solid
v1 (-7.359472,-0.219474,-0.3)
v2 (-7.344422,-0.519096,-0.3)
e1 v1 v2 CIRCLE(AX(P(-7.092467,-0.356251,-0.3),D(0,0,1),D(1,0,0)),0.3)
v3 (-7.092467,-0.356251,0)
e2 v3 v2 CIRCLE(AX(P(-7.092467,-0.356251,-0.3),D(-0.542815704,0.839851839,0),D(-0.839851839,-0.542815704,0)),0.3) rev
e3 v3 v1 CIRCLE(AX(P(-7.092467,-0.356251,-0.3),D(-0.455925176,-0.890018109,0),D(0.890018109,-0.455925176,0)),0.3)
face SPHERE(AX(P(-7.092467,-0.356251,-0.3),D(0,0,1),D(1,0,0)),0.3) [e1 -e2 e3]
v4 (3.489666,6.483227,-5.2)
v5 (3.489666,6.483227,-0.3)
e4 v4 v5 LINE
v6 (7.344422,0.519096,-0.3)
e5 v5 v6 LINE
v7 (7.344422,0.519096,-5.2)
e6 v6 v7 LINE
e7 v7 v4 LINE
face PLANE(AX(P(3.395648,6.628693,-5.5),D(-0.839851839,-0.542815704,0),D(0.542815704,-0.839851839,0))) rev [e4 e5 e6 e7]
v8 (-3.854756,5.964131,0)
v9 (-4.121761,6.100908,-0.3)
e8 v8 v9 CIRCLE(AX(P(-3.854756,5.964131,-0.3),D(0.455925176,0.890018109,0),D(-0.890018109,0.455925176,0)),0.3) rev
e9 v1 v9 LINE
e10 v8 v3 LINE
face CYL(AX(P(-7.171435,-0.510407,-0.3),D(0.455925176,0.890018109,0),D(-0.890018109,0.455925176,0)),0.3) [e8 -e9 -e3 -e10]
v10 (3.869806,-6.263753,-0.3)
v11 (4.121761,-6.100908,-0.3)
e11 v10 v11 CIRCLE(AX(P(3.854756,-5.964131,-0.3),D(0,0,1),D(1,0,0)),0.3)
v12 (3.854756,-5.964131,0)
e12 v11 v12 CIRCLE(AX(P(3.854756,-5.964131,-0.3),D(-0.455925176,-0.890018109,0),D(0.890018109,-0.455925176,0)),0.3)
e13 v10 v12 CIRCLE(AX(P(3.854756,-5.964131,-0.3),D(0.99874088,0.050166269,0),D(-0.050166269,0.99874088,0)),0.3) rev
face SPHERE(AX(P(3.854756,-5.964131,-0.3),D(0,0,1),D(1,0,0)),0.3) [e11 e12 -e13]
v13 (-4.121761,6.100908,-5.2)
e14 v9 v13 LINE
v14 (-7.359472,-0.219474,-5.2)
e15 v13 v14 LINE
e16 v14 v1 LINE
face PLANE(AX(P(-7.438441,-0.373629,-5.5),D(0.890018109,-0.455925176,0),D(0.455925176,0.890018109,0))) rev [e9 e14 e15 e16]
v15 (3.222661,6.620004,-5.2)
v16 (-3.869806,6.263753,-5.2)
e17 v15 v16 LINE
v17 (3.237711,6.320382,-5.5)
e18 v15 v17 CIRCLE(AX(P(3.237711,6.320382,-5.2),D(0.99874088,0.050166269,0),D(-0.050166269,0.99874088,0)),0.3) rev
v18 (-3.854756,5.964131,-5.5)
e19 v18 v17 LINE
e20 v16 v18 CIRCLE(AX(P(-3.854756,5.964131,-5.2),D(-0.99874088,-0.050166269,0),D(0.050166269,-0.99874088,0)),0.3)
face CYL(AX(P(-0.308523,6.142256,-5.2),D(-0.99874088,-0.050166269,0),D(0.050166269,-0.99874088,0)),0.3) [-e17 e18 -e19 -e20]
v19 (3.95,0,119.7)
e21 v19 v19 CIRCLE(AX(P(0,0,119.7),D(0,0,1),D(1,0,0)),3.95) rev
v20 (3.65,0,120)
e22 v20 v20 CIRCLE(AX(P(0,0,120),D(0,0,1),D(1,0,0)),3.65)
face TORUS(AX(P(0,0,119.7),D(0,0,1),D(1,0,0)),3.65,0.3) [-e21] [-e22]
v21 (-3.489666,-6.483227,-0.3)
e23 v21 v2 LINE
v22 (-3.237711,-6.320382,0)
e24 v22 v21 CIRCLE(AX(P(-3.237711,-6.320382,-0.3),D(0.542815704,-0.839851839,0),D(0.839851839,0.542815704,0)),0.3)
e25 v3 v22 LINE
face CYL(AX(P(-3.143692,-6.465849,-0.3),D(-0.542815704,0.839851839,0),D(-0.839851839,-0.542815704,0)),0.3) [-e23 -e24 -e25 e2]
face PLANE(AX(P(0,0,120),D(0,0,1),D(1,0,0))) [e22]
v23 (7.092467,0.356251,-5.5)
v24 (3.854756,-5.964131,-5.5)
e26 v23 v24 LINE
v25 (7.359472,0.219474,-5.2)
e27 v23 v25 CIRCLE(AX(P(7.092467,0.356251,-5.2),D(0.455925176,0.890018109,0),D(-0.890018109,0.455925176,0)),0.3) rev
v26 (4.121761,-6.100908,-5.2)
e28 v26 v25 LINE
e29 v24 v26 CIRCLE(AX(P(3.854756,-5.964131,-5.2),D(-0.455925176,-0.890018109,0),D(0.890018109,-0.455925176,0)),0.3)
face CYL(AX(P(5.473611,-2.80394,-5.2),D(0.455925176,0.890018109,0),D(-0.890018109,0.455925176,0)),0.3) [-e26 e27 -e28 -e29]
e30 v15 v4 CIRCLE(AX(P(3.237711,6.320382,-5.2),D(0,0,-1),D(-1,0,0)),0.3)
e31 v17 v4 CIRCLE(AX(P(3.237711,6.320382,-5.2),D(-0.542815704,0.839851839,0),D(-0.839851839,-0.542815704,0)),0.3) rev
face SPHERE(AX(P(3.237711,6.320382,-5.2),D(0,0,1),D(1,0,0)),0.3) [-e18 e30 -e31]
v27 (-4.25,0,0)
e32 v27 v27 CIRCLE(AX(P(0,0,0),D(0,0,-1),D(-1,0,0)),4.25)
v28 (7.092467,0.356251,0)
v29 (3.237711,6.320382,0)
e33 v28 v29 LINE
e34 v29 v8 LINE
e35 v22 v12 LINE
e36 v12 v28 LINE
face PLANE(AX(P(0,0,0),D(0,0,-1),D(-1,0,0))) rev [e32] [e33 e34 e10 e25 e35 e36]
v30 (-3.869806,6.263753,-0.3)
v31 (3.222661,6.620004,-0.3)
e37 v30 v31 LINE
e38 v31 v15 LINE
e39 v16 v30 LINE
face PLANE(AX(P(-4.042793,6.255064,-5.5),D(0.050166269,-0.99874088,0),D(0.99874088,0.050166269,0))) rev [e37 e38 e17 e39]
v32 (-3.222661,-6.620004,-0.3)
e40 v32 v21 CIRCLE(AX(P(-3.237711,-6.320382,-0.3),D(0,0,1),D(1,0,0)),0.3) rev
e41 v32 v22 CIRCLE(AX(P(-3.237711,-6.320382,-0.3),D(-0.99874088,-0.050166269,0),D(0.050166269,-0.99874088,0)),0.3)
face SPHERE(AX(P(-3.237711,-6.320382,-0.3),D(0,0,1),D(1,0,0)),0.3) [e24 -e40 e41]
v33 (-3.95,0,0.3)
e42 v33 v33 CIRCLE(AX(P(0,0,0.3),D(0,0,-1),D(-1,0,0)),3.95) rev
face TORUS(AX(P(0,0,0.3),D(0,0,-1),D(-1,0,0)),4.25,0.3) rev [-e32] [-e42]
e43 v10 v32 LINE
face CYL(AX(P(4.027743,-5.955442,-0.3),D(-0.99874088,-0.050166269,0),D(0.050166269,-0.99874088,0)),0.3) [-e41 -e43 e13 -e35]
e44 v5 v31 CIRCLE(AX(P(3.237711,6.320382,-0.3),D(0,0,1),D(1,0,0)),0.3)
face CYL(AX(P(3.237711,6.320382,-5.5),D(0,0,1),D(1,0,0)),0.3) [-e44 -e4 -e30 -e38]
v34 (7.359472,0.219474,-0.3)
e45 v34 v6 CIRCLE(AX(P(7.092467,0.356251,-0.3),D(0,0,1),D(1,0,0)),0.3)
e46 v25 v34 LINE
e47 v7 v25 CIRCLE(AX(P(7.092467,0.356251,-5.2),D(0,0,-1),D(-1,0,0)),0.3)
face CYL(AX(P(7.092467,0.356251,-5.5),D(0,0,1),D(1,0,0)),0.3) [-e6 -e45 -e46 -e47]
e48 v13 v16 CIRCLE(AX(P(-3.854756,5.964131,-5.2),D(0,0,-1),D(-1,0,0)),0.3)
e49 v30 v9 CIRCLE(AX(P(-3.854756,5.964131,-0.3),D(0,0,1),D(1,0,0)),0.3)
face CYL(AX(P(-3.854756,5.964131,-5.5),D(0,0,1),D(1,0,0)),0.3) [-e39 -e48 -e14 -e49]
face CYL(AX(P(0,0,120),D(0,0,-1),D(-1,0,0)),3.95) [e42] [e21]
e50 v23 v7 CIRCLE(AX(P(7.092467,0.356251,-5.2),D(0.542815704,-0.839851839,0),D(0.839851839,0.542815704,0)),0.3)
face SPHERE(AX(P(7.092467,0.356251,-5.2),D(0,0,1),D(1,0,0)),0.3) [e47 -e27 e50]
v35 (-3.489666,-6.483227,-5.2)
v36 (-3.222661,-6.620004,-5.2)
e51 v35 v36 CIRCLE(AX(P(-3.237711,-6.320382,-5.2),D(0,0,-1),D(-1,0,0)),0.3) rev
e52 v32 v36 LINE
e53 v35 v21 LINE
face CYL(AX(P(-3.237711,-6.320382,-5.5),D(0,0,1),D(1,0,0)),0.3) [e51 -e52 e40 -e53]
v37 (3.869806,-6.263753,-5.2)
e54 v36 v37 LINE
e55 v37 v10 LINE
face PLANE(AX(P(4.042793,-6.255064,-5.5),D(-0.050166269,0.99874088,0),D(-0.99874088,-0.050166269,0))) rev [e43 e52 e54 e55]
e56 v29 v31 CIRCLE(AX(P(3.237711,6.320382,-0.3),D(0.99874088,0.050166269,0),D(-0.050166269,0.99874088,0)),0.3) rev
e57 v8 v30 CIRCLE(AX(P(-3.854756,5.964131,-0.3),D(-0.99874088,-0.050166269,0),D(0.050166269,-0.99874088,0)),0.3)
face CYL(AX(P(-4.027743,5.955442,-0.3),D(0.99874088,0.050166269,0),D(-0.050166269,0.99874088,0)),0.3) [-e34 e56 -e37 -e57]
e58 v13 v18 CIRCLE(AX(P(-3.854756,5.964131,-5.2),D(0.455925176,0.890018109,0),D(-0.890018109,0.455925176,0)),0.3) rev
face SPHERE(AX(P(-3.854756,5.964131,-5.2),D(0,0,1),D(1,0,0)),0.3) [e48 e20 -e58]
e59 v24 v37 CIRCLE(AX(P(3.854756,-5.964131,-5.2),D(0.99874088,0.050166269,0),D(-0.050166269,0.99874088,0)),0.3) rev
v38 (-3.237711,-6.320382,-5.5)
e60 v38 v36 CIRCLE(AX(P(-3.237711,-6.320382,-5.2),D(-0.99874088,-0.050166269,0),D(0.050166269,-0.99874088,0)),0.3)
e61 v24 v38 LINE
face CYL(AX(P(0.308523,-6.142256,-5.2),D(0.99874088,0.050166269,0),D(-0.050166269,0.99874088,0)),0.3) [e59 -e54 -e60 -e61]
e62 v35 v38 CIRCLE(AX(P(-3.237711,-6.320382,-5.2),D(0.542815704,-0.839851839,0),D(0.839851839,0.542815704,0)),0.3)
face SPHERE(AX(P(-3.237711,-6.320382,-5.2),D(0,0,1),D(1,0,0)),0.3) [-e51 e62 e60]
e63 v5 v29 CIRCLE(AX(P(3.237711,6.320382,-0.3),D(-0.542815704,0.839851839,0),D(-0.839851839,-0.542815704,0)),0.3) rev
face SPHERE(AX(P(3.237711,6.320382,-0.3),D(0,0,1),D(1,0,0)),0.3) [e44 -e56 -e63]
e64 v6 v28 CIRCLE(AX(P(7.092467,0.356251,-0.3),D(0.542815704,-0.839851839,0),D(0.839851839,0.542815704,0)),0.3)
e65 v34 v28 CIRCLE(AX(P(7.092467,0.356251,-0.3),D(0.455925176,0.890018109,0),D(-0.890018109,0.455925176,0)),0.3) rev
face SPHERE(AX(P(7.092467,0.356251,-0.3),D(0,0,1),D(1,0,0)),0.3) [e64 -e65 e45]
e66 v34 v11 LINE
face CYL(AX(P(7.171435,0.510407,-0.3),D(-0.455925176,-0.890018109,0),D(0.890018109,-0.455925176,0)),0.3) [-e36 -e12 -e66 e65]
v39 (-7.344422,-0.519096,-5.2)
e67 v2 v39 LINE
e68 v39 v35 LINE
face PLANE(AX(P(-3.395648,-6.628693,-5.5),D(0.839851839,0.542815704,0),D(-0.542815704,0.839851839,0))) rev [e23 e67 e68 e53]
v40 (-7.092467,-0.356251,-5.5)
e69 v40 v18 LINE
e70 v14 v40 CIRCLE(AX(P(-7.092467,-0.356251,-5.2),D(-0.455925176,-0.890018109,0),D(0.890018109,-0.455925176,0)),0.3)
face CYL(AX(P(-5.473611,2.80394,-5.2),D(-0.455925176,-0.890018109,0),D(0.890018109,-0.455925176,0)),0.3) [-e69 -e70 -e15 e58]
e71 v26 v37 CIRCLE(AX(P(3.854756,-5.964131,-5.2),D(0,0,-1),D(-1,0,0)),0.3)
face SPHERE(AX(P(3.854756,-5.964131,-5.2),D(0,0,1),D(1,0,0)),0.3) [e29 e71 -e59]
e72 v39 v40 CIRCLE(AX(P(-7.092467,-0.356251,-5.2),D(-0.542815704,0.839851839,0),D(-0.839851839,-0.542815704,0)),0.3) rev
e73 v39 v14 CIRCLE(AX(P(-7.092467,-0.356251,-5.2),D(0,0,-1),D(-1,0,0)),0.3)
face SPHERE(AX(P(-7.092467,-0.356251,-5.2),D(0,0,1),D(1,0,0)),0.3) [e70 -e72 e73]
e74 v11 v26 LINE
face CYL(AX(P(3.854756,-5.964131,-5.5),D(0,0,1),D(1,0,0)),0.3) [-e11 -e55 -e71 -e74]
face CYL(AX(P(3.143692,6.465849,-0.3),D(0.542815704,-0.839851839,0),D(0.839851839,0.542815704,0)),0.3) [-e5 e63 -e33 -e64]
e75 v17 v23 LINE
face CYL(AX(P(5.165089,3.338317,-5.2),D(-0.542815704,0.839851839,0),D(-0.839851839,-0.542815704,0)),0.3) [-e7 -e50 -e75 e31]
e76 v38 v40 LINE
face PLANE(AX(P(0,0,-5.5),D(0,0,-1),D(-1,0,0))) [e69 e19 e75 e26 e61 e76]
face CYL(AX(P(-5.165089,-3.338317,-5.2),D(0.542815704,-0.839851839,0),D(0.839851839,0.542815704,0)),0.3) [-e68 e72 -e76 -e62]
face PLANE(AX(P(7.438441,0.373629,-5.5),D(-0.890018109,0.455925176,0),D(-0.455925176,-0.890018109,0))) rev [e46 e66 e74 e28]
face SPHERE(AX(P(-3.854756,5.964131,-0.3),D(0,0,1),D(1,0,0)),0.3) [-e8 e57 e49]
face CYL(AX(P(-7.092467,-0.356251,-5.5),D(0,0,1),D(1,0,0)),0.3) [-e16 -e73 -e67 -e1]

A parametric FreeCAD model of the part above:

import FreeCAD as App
import Part
import Sketcher

V = App.Vector


def add_polygon(sketch, points):
    """Adds a closed chain of lines whose ends are joined by coincident constraints."""
    first, n = sketch.GeometryCount, len(points)
    for a, b in zip(points, points[1:] + points[:1]):
        sketch.addGeometry(Part.LineSegment(App.Vector(*a, 0), App.Vector(*b, 0)), False)
    for i in range(n):
        sketch.addConstraint(Sketcher.Constraint("Coincident", first + i, 2, first + (i + 1) % n, 1))

doc = App.newDocument("Part")
params = doc.addObject("Spreadsheet::Sheet", "Params")
for row, (alias, value) in enumerate([
    ("sketch1_diameter", "7.9 mm"),
    ("pad1_length", "120 mm"),
    ("pad2_length", "5.5 mm"),
    ("fillet_radius", "0.3 mm"),
], start=1):
    params.set(f"A{row}", alias)
    params.set(f"B{row}", "=" + value)
    params.setAlias(f"B{row}", alias)

body = doc.addObject("PartDesign::Body", "Body")

# Sketch on XY plane
sketch1 = body.newObject("Sketcher::SketchObject", "Sketch")
sketch1.AttachmentSupport = (doc.getObject("XY_Plane"), [""])
sketch1.MapMode = "FlatFace"
sketch1.addGeometry(Part.Circle(V(0, 0, 0), V(0, 0, 1), 4), False)
sketch1.addConstraint([
    Sketcher.Constraint("Coincident", 0, 3, -1, 1),
    Sketcher.Constraint("Diameter", 0, 7.9),
])
sketch1.setExpression("Constraints[1]", "Params.sketch1_diameter")
pad1 = body.newObject("PartDesign::Pad", "Pad")
pad1.Profile = sketch1
pad1.setExpression("Length", "Params.pad1_length")

# Sketch on XY plane
sketch2 = body.newObject("Sketcher::SketchObject", "Sketch001")
sketch2.AttachmentSupport = (doc.getObject("XY_Plane"), [""])
sketch2.MapMode = "FlatFace"
add_polygon(sketch2, [(7, 0), (4, -6), (-3, -7), (-7, 0), (-4, 6), (3, 7)])  # lines 0-5
sketch2.addConstraint([
    Sketcher.Constraint("Symmetric", 0, 2, 3, 2, -1, 1),
    Sketcher.Constraint("Symmetric", 1, 2, 4, 2, -1, 1),
    Sketcher.Constraint("Symmetric", 2, 2, 5, 2, -1, 1),
    Sketcher.Constraint("Equal", 0, 1),
    Sketcher.Constraint("Equal", 1, 2),
    Sketcher.Constraint("Distance", 0, 7.447818),
    Sketcher.Constraint("DistanceX", 2, 2, -1, 1, 7.438441),
    Sketcher.Constraint("DistanceY", 2, 2, -1, 1, 0.373629),
    Sketcher.Constraint("DistanceX", 1, 2, 0, 2, 7.438441),
])
pad2 = body.newObject("PartDesign::Pad", "Pad001")
pad2.Profile = sketch2
pad2.setExpression("Length", "Params.pad2_length")
pad2.Reversed = True
doc.recompute()

fillet = body.newObject("PartDesign::Fillet", "Fillet")
fillet.Base = (pad2, ["Edge1"])
fillet.UseAllEdges = True
fillet.setExpression("Radius", "Params.fillet_radius")

doc.recompute()
